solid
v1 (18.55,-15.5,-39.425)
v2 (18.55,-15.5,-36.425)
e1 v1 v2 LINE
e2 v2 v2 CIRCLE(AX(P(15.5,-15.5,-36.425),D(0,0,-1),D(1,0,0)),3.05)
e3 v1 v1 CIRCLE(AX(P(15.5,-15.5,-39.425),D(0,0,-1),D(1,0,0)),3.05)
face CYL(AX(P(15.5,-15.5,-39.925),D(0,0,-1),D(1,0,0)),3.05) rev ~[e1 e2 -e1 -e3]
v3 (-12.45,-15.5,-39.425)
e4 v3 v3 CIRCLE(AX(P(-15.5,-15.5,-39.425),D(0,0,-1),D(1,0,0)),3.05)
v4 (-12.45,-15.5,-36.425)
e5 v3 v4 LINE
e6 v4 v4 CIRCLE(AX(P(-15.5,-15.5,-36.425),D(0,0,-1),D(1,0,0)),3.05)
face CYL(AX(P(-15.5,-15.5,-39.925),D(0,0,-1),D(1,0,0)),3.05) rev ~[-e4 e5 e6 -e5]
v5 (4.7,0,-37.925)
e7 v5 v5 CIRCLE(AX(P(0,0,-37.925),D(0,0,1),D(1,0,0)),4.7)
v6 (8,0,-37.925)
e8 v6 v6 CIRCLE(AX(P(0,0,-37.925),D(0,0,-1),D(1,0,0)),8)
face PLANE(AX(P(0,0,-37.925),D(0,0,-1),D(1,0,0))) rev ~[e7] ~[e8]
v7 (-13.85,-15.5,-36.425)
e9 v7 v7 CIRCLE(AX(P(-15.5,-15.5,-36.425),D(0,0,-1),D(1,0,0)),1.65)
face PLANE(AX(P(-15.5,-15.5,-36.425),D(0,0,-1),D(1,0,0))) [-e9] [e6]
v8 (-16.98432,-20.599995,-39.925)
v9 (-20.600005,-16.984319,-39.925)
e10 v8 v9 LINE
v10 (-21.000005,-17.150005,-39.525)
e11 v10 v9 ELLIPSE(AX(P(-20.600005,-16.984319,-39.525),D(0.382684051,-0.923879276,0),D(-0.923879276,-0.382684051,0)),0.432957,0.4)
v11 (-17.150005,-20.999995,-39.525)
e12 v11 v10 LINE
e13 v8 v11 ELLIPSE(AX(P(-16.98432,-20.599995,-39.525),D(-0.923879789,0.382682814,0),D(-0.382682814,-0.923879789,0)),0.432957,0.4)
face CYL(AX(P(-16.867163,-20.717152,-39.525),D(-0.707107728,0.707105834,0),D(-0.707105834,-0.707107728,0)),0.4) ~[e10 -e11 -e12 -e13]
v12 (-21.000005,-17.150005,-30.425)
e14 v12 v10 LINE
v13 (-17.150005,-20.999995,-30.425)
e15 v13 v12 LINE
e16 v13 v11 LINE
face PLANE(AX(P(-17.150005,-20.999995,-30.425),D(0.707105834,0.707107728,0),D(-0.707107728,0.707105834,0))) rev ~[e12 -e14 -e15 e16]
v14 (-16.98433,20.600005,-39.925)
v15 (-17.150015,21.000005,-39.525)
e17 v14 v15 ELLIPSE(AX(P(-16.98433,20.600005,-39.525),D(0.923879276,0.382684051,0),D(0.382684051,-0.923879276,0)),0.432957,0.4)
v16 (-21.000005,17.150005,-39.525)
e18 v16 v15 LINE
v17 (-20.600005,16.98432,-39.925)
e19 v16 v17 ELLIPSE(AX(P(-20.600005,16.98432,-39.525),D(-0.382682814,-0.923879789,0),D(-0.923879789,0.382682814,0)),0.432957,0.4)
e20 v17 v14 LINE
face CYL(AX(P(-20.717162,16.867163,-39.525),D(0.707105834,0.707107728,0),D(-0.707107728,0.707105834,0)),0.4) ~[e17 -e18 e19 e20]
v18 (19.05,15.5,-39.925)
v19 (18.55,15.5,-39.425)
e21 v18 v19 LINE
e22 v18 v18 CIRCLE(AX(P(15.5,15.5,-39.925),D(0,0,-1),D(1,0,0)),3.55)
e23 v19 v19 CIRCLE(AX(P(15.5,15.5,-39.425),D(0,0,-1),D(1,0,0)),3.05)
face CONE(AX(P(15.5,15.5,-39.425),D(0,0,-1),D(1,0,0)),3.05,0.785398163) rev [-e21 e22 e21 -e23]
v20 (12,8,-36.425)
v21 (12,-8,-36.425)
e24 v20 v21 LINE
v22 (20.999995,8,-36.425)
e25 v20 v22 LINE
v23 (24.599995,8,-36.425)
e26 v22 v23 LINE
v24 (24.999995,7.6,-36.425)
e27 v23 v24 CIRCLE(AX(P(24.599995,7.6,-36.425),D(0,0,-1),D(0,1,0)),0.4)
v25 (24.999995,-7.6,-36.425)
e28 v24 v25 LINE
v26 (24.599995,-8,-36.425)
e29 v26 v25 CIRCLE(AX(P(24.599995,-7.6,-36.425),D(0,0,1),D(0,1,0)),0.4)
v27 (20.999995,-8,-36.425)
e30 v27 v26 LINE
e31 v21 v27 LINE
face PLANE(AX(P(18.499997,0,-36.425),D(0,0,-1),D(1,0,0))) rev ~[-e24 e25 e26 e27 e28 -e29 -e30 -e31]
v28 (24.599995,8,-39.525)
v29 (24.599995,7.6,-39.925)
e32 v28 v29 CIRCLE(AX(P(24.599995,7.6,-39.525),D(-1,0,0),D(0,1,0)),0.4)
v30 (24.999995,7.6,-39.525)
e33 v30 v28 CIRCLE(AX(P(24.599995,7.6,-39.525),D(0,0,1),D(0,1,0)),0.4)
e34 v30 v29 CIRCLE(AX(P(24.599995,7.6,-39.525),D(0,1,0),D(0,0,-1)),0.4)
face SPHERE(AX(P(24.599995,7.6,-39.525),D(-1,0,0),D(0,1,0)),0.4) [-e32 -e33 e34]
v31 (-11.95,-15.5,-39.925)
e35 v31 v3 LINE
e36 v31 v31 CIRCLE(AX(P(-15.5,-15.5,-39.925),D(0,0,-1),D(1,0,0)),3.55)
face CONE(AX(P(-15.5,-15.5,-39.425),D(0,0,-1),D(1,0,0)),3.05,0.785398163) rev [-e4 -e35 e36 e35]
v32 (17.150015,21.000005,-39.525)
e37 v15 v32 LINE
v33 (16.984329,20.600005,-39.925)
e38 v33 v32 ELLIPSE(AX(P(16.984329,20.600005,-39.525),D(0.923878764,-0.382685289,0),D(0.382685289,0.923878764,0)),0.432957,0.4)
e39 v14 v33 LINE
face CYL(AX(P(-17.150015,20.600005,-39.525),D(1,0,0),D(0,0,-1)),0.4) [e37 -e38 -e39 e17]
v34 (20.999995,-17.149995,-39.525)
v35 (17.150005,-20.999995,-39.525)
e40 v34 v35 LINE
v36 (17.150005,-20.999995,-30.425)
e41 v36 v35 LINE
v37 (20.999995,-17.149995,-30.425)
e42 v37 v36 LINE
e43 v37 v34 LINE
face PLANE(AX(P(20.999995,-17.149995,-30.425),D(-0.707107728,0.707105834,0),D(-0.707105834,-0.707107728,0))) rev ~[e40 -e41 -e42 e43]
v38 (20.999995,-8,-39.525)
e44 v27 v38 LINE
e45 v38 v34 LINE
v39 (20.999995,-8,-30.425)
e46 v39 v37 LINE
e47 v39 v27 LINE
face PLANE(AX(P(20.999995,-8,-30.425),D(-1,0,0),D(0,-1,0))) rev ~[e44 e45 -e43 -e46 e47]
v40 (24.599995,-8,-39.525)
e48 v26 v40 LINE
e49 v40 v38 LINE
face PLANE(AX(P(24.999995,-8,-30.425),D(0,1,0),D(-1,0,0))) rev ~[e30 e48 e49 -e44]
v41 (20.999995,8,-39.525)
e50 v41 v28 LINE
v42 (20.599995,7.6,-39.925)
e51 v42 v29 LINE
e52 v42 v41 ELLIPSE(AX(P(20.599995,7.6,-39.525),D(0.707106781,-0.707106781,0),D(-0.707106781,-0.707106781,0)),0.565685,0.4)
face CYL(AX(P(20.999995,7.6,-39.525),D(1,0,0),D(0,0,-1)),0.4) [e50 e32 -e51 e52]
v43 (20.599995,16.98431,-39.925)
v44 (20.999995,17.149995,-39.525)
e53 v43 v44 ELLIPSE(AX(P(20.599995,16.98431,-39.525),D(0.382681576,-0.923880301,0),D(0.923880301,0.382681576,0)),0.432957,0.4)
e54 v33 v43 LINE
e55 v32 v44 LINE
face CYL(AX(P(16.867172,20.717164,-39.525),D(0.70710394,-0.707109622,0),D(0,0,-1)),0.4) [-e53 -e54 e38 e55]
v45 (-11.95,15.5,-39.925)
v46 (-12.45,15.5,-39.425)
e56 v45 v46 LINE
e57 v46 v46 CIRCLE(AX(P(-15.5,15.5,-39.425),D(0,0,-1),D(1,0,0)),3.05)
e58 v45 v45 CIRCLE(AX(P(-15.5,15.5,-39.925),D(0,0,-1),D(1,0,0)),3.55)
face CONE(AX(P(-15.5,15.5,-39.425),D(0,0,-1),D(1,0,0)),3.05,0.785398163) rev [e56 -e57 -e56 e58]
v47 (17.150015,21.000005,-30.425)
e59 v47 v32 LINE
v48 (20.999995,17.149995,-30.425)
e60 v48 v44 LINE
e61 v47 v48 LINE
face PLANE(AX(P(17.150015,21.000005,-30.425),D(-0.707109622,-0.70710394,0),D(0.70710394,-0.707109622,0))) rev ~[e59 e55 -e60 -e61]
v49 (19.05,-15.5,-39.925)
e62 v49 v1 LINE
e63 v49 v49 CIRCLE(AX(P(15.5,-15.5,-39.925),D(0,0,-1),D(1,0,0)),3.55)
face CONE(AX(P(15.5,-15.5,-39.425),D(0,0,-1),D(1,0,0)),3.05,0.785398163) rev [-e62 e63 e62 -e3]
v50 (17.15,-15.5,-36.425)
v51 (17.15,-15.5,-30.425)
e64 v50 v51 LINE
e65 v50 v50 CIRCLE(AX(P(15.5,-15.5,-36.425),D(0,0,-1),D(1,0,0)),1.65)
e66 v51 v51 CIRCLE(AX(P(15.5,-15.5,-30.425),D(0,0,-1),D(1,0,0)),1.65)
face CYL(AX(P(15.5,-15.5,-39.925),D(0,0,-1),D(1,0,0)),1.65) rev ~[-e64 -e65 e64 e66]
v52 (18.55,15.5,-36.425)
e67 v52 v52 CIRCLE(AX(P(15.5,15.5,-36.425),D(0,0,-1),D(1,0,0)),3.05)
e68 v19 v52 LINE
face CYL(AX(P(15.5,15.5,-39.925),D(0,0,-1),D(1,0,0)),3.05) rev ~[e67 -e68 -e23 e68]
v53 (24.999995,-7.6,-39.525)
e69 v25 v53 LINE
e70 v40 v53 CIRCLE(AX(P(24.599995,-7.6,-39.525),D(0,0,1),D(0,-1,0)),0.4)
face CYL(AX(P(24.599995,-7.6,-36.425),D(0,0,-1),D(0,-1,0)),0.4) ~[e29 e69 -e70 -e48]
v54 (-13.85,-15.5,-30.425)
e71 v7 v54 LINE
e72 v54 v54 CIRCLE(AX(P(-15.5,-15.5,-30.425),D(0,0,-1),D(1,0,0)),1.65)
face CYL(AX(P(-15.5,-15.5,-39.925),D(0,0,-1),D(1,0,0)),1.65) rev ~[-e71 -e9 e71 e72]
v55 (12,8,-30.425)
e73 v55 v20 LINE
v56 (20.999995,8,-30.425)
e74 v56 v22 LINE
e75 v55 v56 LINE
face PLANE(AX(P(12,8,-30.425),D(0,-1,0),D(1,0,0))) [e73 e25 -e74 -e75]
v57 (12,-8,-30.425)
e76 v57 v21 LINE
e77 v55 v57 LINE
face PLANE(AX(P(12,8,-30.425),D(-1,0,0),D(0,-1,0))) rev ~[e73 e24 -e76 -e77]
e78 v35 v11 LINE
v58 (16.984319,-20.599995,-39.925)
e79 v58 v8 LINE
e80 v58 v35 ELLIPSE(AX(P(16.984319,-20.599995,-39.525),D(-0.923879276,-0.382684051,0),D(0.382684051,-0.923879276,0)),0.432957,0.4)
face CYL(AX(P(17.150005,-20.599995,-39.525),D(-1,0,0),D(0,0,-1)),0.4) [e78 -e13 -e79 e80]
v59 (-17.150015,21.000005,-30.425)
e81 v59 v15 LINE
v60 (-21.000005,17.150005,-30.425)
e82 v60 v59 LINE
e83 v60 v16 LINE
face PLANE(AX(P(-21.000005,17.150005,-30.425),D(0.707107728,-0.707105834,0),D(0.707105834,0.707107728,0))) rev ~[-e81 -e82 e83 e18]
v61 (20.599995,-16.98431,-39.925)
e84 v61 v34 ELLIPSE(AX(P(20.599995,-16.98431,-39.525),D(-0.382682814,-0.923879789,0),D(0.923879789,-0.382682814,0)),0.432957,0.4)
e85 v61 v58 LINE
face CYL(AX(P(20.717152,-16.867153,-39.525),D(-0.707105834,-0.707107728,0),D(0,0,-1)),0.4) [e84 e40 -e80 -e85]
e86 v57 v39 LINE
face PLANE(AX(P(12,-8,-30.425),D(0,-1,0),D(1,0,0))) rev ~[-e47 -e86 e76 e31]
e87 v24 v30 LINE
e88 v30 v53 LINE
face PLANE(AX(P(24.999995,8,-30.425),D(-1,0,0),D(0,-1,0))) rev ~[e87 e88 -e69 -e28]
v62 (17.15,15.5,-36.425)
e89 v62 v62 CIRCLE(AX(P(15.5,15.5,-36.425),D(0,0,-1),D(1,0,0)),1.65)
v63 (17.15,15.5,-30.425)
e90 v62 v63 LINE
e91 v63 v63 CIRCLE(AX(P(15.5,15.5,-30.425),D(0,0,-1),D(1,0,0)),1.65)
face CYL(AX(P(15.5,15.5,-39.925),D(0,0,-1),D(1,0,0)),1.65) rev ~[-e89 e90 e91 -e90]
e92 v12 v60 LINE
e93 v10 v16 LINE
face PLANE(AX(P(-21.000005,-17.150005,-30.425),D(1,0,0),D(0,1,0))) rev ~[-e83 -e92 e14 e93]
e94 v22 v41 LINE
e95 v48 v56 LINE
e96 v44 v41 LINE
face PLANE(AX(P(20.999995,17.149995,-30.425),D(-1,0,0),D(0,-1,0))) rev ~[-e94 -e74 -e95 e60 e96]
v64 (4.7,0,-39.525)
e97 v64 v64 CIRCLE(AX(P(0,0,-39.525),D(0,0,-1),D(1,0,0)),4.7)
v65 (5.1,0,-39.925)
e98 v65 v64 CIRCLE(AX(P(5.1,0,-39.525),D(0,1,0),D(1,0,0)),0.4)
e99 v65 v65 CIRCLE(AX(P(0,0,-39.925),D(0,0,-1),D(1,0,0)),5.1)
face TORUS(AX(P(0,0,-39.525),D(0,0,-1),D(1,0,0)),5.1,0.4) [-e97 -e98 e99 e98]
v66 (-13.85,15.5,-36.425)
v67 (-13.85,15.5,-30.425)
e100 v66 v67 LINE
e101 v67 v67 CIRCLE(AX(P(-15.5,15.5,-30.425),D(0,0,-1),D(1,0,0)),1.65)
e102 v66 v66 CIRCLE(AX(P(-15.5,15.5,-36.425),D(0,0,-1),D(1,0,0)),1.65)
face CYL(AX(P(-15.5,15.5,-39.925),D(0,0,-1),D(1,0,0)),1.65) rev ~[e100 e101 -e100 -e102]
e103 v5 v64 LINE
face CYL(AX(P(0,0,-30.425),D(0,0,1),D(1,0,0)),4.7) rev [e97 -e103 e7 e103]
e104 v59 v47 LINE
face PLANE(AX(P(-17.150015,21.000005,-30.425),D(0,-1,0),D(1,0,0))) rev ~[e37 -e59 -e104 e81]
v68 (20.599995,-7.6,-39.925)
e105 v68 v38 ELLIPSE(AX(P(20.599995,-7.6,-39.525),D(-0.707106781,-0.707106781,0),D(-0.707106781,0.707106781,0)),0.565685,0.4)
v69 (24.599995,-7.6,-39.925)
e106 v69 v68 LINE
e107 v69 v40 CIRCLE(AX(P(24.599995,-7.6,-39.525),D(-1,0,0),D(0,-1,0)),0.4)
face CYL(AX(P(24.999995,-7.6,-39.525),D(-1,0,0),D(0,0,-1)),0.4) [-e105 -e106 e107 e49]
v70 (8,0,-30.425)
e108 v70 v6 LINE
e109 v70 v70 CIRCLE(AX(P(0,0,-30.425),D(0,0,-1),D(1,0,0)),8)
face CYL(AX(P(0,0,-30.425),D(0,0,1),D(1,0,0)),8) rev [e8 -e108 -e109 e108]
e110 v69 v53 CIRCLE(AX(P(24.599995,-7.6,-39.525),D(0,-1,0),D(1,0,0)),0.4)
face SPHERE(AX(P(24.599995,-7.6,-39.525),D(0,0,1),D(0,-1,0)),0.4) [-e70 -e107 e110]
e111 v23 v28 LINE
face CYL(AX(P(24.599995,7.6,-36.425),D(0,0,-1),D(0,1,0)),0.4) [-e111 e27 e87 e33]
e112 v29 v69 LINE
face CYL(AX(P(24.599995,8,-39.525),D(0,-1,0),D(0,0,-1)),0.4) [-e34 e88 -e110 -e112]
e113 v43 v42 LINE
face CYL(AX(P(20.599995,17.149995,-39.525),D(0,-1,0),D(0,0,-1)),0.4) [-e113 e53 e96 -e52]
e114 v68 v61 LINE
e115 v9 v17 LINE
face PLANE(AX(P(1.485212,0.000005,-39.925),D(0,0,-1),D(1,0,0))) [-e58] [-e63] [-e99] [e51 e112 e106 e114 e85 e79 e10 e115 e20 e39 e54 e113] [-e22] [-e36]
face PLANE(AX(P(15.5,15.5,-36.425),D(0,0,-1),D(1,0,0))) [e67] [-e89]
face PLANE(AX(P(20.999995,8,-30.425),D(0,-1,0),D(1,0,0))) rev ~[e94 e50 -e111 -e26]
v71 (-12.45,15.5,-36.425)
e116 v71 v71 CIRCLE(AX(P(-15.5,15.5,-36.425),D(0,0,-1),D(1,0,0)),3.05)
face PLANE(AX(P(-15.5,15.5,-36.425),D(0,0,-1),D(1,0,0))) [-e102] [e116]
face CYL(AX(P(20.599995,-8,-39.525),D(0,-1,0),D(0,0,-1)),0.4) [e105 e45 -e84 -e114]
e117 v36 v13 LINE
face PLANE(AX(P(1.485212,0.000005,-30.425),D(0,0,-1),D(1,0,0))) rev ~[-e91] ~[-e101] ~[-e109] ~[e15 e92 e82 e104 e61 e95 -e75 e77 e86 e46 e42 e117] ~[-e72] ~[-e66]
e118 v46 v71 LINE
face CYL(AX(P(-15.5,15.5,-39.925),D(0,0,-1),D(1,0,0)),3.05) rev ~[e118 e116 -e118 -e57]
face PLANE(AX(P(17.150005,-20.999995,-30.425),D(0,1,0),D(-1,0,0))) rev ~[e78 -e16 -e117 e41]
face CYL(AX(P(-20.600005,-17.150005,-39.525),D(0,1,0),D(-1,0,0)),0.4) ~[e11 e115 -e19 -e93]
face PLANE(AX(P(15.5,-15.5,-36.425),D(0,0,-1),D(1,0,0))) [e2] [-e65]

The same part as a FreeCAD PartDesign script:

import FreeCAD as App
import Part
import Sketcher


def edges_at(feature, points):
    """Names of the edges that pass closest to the given points."""
    edges = feature.Shape.Edges
    near = lambda p: min(range(len(edges)), key=lambda i: edges[i].distToShape(Part.Vertex(*p))[0])
    return sorted({f"Edge{near(p) + 1}" for p in points})


def add_polygon(sketch, points):
    """Adds a closed chain of lines whose ends are joined by coincident constraints."""
    first, n = sketch.GeometryCount, len(points)
    for a, b in zip(points, points[1:] + points[:1]):
        sketch.addGeometry(Part.LineSegment(App.Vector(*a, 0), App.Vector(*b, 0)), False)
    for i in range(n):
        sketch.addConstraint(Sketcher.Constraint("Coincident", first + i, 2, first + (i + 1) % n, 1))

doc = App.newDocument("Part")
body = doc.addObject("PartDesign::Body", "Body")

# Sketch on XY plane
sketch1 = body.newObject("Sketcher::SketchObject", "Sketch")
sketch1.AttachmentSupport = (doc.getObject("XY_Plane"), [""])
sketch1.MapMode = "FlatFace"
add_polygon(sketch1, [(-21.000005, 17.150005), (-21.000005, -17.150005), (-17.150015, -21.000005), (17.150015, -21.000005), (20.999995, -17.149995), (20.999995, -8), (24.999995, -8), (24.999995, 8), (20.999995, 8), (20.999995, 17.149995), (17.150005, 20.999995), (-17.150005, 20.999995)])  # lines 0-11
sketch1.addGeometry(Part.Circle(App.Vector(0, 0, 0), App.Vector(0, 0, 1), 4.7), False)  # 12
sketch1.addConstraint([
    Sketcher.Constraint("Vertical", 0),
    Sketcher.Constraint("Horizontal", 2),
    Sketcher.Constraint("Vertical", 4),
    Sketcher.Constraint("Horizontal", 5),
    Sketcher.Constraint("Vertical", 6),
    Sketcher.Constraint("Horizontal", 7),
    Sketcher.Constraint("Vertical", 8),
    Sketcher.Constraint("Horizontal", 10),
    Sketcher.Constraint("Coincident", 12, 3, -1, 1),
    Sketcher.Constraint("Symmetric", 4, 2, 7, 2, -1),
    Sketcher.Constraint("Parallel", 1, 9),
    Sketcher.Constraint("Perpendicular", 9, 11),
    Sketcher.Constraint("Equal", 10, 0),
    Sketcher.Constraint("Equal", 4, 8),
    Sketcher.Constraint("Equal", 1, 3),
    Sketcher.Constraint("Equal", 3, 9),
    Sketcher.Constraint("Equal", 9, 11),
    Sketcher.Constraint("Diameter", 12, 9.4),
    Sketcher.Constraint("DistanceX", 5, 1, 5, 2, 4.0),
    Sketcher.Constraint("DistanceY", 6, 1, 6, 2, 16.0),
    Sketcher.Constraint("DistanceX", 0, 2, 3, 2, 42.0),
    Sketcher.Constraint("DistanceY", 1, 2, 0, 2, 3.85),
    Sketcher.Constraint("DistanceX", 2, 1, 2, 2, 34.300031),
    Sketcher.Constraint("DistanceX", 10, 2, 10, 1, 34.30001),
    Sketcher.Constraint("DistanceX", 0, 2, -1, 1, 21.000005),
])
pad1 = body.newObject("PartDesign::Pad", "Pad")
pad1.Profile = sketch1
pad1.Length = 9.5

# Sketch on XY plane
sketch2 = body.newObject("Sketcher::SketchObject", "Sketch001")
sketch2.AttachmentSupport = (doc.getObject("XY_Plane"), [""])
sketch2.MapMode = "FlatFace"
add_polygon(sketch2, [(12, 8), (12, -8), (24.999995, -8), (24.999995, 8)])  # lines 0-3
sketch2.addConstraint([
    Sketcher.Constraint("Vertical", 0),
    Sketcher.Constraint("Horizontal", 1),
    Sketcher.Constraint("Vertical", 2),
    Sketcher.Constraint("Horizontal", 3),
    Sketcher.Constraint("DistanceY", 0, 2, 0, 1, 16.0),
    Sketcher.Constraint("DistanceX", -1, 1, 0, 2, 12.0),
    Sketcher.Constraint("DistanceY", 0, 2, -1, 1, 8.0),
    Sketcher.Constraint("DistanceX", 1, 1, 1, 2, 12.999995),
])
pocket1 = body.newObject("PartDesign::Pocket", "Pocket")
pocket1.Profile = sketch2
pocket1.Length = 6
pocket1.Reversed = True

# Sketch on XY plane
sketch3 = body.newObject("Sketcher::SketchObject", "Sketch002")
sketch3.AttachmentSupport = (doc.getObject("XY_Plane"), [""])
sketch3.MapMode = "FlatFace"
sketch3.addGeometry(Part.Circle(App.Vector(0, 0, 0), App.Vector(0, 0, 1), 8), False)
sketch3.addConstraint([
    Sketcher.Constraint("Coincident", 0, 3, -1, 1),
    Sketcher.Constraint("Diameter", 0, 16.0),
])
pocket2 = body.newObject("PartDesign::Pocket", "Pocket001")
pocket2.Profile = sketch3
pocket2.Length = 7.5
pocket2.Reversed = True

# Sketch on XY plane
sketch4 = body.newObject("Sketcher::SketchObject", "Sketch003")
sketch4.AttachmentSupport = (doc.getObject("XY_Plane"), [""])
sketch4.MapMode = "FlatFace"
sketch4.AttachmentOffset = App.Placement(App.Vector(0, 0, 9.5), App.Rotation())
sketch4.addGeometry([
    Part.Circle(App.Vector(-15.5, 15.5, 0), App.Vector(0, 0, 1), 1.65),
    Part.Circle(App.Vector(15.5, 15.5, 0), App.Vector(0, 0, 1), 1.65),
    Part.Circle(App.Vector(15.5, -15.5, 0), App.Vector(0, 0, 1), 1.65),
    Part.Circle(App.Vector(-15.5, -15.5, 0), App.Vector(0, 0, 1), 1.65),
], False)
sketch4.addConstraint([
    Sketcher.Constraint("Equal", 0, 1),
    Sketcher.Constraint("Equal", 1, 2),
    Sketcher.Constraint("Equal", 2, 3),
    Sketcher.Constraint("Symmetric", 0, 3, 2, 3, -1, 1),
    Sketcher.Constraint("Symmetric", 1, 3, 3, 3, -1, 1),
    Sketcher.Constraint("Symmetric", 0, 3, 1, 3, -2),
    Sketcher.Constraint("Diameter", 0, 3.3),
    Sketcher.Constraint("DistanceX", 0, 3, 1, 3, 31.0),
    Sketcher.Constraint("DistanceY", 2, 3, 1, 3, 31.0),
])
pocket3 = body.newObject("PartDesign::Pocket", "Pocket002")
pocket3.Profile = sketch4
pocket3.Type = "ThroughAll"

# Sketch on XY plane
sketch5 = body.newObject("Sketcher::SketchObject", "Sketch004")
sketch5.AttachmentSupport = (doc.getObject("XY_Plane"), [""])
sketch5.MapMode = "FlatFace"
sketch5.AttachmentOffset = App.Placement(App.Vector(0, 0, 9.5), App.Rotation())
sketch5.addGeometry([
    Part.Circle(App.Vector(-15.5, 15.5, 0), App.Vector(0, 0, 1), 3.05),
    Part.Circle(App.Vector(15.5, 15.5, 0), App.Vector(0, 0, 1), 3.05),
    Part.Circle(App.Vector(15.5, -15.5, 0), App.Vector(0, 0, 1), 3.05),
    Part.Circle(App.Vector(-15.5, -15.5, 0), App.Vector(0, 0, 1), 3.05),
], False)
sketch5.addConstraint([
    Sketcher.Constraint("Equal", 0, 1),
    Sketcher.Constraint("Equal", 1, 2),
    Sketcher.Constraint("Equal", 2, 3),
    Sketcher.Constraint("Symmetric", 0, 3, 2, 3, -1, 1),
    Sketcher.Constraint("Symmetric", 1, 3, 3, 3, -1, 1),
    Sketcher.Constraint("Symmetric", 0, 3, 1, 3, -2),
    Sketcher.Constraint("Diameter", 0, 6.1),
    Sketcher.Constraint("DistanceX", 0, 3, 1, 3, 31.0),
    Sketcher.Constraint("DistanceY", 2, 3, 1, 3, 31.0),
])
pocket4 = body.newObject("PartDesign::Pocket", "Pocket003")
pocket4.Profile = sketch5
pocket4.Length = 3.5
doc.recompute()

fillet = body.newObject("PartDesign::Fillet", "Fillet")
fillet.Base = (pocket4, edges_at(pocket4, [
    (-4.7, 0, 9.5),
    (0, -21, 9.5),
    (19.075, -19.075, 9.5),
    (21, -12.575, 9.5),
    (23, -8, 9.5),
    (25, -8, 7.75),
    (25, 8, 7.75),
    (23, 8, 9.5),
    (21, 12.575, 9.5),
    (19.075, 19.075, 9.5),
    (0, 21, 9.5),
    (-19.075, 19.075, 9.5),
    (-21, 0, 9.5),
    (-19.075, -19.075, 9.5),
    (25, 0, 9.5),
]))
fillet.Radius = 0.4
doc.recompute()

chamfer = body.newObject("PartDesign::Chamfer", "Chamfer")
chamfer.Base = (fillet, edges_at(fillet, [
    (12.45, 15.5, 9.5),
    (-18.55, 15.5, 9.5),
    (12.45, -15.5, 9.5),
    (-18.55, -15.5, 9.5),
]))
chamfer.Size = 0.5
body2 = doc.addObject("PartDesign::Body", "Body001")
doc.recompute()

body.Placement = App.Placement(App.Vector(0, 0, -30.425), App.Rotation(App.Vector(1, 0, 0), 180))
boolean = body2.newObject("PartDesign::Boolean", "Boolean")
boolean.Type = "Fuse"
boolean.addObjects([body])

doc.recompute()
